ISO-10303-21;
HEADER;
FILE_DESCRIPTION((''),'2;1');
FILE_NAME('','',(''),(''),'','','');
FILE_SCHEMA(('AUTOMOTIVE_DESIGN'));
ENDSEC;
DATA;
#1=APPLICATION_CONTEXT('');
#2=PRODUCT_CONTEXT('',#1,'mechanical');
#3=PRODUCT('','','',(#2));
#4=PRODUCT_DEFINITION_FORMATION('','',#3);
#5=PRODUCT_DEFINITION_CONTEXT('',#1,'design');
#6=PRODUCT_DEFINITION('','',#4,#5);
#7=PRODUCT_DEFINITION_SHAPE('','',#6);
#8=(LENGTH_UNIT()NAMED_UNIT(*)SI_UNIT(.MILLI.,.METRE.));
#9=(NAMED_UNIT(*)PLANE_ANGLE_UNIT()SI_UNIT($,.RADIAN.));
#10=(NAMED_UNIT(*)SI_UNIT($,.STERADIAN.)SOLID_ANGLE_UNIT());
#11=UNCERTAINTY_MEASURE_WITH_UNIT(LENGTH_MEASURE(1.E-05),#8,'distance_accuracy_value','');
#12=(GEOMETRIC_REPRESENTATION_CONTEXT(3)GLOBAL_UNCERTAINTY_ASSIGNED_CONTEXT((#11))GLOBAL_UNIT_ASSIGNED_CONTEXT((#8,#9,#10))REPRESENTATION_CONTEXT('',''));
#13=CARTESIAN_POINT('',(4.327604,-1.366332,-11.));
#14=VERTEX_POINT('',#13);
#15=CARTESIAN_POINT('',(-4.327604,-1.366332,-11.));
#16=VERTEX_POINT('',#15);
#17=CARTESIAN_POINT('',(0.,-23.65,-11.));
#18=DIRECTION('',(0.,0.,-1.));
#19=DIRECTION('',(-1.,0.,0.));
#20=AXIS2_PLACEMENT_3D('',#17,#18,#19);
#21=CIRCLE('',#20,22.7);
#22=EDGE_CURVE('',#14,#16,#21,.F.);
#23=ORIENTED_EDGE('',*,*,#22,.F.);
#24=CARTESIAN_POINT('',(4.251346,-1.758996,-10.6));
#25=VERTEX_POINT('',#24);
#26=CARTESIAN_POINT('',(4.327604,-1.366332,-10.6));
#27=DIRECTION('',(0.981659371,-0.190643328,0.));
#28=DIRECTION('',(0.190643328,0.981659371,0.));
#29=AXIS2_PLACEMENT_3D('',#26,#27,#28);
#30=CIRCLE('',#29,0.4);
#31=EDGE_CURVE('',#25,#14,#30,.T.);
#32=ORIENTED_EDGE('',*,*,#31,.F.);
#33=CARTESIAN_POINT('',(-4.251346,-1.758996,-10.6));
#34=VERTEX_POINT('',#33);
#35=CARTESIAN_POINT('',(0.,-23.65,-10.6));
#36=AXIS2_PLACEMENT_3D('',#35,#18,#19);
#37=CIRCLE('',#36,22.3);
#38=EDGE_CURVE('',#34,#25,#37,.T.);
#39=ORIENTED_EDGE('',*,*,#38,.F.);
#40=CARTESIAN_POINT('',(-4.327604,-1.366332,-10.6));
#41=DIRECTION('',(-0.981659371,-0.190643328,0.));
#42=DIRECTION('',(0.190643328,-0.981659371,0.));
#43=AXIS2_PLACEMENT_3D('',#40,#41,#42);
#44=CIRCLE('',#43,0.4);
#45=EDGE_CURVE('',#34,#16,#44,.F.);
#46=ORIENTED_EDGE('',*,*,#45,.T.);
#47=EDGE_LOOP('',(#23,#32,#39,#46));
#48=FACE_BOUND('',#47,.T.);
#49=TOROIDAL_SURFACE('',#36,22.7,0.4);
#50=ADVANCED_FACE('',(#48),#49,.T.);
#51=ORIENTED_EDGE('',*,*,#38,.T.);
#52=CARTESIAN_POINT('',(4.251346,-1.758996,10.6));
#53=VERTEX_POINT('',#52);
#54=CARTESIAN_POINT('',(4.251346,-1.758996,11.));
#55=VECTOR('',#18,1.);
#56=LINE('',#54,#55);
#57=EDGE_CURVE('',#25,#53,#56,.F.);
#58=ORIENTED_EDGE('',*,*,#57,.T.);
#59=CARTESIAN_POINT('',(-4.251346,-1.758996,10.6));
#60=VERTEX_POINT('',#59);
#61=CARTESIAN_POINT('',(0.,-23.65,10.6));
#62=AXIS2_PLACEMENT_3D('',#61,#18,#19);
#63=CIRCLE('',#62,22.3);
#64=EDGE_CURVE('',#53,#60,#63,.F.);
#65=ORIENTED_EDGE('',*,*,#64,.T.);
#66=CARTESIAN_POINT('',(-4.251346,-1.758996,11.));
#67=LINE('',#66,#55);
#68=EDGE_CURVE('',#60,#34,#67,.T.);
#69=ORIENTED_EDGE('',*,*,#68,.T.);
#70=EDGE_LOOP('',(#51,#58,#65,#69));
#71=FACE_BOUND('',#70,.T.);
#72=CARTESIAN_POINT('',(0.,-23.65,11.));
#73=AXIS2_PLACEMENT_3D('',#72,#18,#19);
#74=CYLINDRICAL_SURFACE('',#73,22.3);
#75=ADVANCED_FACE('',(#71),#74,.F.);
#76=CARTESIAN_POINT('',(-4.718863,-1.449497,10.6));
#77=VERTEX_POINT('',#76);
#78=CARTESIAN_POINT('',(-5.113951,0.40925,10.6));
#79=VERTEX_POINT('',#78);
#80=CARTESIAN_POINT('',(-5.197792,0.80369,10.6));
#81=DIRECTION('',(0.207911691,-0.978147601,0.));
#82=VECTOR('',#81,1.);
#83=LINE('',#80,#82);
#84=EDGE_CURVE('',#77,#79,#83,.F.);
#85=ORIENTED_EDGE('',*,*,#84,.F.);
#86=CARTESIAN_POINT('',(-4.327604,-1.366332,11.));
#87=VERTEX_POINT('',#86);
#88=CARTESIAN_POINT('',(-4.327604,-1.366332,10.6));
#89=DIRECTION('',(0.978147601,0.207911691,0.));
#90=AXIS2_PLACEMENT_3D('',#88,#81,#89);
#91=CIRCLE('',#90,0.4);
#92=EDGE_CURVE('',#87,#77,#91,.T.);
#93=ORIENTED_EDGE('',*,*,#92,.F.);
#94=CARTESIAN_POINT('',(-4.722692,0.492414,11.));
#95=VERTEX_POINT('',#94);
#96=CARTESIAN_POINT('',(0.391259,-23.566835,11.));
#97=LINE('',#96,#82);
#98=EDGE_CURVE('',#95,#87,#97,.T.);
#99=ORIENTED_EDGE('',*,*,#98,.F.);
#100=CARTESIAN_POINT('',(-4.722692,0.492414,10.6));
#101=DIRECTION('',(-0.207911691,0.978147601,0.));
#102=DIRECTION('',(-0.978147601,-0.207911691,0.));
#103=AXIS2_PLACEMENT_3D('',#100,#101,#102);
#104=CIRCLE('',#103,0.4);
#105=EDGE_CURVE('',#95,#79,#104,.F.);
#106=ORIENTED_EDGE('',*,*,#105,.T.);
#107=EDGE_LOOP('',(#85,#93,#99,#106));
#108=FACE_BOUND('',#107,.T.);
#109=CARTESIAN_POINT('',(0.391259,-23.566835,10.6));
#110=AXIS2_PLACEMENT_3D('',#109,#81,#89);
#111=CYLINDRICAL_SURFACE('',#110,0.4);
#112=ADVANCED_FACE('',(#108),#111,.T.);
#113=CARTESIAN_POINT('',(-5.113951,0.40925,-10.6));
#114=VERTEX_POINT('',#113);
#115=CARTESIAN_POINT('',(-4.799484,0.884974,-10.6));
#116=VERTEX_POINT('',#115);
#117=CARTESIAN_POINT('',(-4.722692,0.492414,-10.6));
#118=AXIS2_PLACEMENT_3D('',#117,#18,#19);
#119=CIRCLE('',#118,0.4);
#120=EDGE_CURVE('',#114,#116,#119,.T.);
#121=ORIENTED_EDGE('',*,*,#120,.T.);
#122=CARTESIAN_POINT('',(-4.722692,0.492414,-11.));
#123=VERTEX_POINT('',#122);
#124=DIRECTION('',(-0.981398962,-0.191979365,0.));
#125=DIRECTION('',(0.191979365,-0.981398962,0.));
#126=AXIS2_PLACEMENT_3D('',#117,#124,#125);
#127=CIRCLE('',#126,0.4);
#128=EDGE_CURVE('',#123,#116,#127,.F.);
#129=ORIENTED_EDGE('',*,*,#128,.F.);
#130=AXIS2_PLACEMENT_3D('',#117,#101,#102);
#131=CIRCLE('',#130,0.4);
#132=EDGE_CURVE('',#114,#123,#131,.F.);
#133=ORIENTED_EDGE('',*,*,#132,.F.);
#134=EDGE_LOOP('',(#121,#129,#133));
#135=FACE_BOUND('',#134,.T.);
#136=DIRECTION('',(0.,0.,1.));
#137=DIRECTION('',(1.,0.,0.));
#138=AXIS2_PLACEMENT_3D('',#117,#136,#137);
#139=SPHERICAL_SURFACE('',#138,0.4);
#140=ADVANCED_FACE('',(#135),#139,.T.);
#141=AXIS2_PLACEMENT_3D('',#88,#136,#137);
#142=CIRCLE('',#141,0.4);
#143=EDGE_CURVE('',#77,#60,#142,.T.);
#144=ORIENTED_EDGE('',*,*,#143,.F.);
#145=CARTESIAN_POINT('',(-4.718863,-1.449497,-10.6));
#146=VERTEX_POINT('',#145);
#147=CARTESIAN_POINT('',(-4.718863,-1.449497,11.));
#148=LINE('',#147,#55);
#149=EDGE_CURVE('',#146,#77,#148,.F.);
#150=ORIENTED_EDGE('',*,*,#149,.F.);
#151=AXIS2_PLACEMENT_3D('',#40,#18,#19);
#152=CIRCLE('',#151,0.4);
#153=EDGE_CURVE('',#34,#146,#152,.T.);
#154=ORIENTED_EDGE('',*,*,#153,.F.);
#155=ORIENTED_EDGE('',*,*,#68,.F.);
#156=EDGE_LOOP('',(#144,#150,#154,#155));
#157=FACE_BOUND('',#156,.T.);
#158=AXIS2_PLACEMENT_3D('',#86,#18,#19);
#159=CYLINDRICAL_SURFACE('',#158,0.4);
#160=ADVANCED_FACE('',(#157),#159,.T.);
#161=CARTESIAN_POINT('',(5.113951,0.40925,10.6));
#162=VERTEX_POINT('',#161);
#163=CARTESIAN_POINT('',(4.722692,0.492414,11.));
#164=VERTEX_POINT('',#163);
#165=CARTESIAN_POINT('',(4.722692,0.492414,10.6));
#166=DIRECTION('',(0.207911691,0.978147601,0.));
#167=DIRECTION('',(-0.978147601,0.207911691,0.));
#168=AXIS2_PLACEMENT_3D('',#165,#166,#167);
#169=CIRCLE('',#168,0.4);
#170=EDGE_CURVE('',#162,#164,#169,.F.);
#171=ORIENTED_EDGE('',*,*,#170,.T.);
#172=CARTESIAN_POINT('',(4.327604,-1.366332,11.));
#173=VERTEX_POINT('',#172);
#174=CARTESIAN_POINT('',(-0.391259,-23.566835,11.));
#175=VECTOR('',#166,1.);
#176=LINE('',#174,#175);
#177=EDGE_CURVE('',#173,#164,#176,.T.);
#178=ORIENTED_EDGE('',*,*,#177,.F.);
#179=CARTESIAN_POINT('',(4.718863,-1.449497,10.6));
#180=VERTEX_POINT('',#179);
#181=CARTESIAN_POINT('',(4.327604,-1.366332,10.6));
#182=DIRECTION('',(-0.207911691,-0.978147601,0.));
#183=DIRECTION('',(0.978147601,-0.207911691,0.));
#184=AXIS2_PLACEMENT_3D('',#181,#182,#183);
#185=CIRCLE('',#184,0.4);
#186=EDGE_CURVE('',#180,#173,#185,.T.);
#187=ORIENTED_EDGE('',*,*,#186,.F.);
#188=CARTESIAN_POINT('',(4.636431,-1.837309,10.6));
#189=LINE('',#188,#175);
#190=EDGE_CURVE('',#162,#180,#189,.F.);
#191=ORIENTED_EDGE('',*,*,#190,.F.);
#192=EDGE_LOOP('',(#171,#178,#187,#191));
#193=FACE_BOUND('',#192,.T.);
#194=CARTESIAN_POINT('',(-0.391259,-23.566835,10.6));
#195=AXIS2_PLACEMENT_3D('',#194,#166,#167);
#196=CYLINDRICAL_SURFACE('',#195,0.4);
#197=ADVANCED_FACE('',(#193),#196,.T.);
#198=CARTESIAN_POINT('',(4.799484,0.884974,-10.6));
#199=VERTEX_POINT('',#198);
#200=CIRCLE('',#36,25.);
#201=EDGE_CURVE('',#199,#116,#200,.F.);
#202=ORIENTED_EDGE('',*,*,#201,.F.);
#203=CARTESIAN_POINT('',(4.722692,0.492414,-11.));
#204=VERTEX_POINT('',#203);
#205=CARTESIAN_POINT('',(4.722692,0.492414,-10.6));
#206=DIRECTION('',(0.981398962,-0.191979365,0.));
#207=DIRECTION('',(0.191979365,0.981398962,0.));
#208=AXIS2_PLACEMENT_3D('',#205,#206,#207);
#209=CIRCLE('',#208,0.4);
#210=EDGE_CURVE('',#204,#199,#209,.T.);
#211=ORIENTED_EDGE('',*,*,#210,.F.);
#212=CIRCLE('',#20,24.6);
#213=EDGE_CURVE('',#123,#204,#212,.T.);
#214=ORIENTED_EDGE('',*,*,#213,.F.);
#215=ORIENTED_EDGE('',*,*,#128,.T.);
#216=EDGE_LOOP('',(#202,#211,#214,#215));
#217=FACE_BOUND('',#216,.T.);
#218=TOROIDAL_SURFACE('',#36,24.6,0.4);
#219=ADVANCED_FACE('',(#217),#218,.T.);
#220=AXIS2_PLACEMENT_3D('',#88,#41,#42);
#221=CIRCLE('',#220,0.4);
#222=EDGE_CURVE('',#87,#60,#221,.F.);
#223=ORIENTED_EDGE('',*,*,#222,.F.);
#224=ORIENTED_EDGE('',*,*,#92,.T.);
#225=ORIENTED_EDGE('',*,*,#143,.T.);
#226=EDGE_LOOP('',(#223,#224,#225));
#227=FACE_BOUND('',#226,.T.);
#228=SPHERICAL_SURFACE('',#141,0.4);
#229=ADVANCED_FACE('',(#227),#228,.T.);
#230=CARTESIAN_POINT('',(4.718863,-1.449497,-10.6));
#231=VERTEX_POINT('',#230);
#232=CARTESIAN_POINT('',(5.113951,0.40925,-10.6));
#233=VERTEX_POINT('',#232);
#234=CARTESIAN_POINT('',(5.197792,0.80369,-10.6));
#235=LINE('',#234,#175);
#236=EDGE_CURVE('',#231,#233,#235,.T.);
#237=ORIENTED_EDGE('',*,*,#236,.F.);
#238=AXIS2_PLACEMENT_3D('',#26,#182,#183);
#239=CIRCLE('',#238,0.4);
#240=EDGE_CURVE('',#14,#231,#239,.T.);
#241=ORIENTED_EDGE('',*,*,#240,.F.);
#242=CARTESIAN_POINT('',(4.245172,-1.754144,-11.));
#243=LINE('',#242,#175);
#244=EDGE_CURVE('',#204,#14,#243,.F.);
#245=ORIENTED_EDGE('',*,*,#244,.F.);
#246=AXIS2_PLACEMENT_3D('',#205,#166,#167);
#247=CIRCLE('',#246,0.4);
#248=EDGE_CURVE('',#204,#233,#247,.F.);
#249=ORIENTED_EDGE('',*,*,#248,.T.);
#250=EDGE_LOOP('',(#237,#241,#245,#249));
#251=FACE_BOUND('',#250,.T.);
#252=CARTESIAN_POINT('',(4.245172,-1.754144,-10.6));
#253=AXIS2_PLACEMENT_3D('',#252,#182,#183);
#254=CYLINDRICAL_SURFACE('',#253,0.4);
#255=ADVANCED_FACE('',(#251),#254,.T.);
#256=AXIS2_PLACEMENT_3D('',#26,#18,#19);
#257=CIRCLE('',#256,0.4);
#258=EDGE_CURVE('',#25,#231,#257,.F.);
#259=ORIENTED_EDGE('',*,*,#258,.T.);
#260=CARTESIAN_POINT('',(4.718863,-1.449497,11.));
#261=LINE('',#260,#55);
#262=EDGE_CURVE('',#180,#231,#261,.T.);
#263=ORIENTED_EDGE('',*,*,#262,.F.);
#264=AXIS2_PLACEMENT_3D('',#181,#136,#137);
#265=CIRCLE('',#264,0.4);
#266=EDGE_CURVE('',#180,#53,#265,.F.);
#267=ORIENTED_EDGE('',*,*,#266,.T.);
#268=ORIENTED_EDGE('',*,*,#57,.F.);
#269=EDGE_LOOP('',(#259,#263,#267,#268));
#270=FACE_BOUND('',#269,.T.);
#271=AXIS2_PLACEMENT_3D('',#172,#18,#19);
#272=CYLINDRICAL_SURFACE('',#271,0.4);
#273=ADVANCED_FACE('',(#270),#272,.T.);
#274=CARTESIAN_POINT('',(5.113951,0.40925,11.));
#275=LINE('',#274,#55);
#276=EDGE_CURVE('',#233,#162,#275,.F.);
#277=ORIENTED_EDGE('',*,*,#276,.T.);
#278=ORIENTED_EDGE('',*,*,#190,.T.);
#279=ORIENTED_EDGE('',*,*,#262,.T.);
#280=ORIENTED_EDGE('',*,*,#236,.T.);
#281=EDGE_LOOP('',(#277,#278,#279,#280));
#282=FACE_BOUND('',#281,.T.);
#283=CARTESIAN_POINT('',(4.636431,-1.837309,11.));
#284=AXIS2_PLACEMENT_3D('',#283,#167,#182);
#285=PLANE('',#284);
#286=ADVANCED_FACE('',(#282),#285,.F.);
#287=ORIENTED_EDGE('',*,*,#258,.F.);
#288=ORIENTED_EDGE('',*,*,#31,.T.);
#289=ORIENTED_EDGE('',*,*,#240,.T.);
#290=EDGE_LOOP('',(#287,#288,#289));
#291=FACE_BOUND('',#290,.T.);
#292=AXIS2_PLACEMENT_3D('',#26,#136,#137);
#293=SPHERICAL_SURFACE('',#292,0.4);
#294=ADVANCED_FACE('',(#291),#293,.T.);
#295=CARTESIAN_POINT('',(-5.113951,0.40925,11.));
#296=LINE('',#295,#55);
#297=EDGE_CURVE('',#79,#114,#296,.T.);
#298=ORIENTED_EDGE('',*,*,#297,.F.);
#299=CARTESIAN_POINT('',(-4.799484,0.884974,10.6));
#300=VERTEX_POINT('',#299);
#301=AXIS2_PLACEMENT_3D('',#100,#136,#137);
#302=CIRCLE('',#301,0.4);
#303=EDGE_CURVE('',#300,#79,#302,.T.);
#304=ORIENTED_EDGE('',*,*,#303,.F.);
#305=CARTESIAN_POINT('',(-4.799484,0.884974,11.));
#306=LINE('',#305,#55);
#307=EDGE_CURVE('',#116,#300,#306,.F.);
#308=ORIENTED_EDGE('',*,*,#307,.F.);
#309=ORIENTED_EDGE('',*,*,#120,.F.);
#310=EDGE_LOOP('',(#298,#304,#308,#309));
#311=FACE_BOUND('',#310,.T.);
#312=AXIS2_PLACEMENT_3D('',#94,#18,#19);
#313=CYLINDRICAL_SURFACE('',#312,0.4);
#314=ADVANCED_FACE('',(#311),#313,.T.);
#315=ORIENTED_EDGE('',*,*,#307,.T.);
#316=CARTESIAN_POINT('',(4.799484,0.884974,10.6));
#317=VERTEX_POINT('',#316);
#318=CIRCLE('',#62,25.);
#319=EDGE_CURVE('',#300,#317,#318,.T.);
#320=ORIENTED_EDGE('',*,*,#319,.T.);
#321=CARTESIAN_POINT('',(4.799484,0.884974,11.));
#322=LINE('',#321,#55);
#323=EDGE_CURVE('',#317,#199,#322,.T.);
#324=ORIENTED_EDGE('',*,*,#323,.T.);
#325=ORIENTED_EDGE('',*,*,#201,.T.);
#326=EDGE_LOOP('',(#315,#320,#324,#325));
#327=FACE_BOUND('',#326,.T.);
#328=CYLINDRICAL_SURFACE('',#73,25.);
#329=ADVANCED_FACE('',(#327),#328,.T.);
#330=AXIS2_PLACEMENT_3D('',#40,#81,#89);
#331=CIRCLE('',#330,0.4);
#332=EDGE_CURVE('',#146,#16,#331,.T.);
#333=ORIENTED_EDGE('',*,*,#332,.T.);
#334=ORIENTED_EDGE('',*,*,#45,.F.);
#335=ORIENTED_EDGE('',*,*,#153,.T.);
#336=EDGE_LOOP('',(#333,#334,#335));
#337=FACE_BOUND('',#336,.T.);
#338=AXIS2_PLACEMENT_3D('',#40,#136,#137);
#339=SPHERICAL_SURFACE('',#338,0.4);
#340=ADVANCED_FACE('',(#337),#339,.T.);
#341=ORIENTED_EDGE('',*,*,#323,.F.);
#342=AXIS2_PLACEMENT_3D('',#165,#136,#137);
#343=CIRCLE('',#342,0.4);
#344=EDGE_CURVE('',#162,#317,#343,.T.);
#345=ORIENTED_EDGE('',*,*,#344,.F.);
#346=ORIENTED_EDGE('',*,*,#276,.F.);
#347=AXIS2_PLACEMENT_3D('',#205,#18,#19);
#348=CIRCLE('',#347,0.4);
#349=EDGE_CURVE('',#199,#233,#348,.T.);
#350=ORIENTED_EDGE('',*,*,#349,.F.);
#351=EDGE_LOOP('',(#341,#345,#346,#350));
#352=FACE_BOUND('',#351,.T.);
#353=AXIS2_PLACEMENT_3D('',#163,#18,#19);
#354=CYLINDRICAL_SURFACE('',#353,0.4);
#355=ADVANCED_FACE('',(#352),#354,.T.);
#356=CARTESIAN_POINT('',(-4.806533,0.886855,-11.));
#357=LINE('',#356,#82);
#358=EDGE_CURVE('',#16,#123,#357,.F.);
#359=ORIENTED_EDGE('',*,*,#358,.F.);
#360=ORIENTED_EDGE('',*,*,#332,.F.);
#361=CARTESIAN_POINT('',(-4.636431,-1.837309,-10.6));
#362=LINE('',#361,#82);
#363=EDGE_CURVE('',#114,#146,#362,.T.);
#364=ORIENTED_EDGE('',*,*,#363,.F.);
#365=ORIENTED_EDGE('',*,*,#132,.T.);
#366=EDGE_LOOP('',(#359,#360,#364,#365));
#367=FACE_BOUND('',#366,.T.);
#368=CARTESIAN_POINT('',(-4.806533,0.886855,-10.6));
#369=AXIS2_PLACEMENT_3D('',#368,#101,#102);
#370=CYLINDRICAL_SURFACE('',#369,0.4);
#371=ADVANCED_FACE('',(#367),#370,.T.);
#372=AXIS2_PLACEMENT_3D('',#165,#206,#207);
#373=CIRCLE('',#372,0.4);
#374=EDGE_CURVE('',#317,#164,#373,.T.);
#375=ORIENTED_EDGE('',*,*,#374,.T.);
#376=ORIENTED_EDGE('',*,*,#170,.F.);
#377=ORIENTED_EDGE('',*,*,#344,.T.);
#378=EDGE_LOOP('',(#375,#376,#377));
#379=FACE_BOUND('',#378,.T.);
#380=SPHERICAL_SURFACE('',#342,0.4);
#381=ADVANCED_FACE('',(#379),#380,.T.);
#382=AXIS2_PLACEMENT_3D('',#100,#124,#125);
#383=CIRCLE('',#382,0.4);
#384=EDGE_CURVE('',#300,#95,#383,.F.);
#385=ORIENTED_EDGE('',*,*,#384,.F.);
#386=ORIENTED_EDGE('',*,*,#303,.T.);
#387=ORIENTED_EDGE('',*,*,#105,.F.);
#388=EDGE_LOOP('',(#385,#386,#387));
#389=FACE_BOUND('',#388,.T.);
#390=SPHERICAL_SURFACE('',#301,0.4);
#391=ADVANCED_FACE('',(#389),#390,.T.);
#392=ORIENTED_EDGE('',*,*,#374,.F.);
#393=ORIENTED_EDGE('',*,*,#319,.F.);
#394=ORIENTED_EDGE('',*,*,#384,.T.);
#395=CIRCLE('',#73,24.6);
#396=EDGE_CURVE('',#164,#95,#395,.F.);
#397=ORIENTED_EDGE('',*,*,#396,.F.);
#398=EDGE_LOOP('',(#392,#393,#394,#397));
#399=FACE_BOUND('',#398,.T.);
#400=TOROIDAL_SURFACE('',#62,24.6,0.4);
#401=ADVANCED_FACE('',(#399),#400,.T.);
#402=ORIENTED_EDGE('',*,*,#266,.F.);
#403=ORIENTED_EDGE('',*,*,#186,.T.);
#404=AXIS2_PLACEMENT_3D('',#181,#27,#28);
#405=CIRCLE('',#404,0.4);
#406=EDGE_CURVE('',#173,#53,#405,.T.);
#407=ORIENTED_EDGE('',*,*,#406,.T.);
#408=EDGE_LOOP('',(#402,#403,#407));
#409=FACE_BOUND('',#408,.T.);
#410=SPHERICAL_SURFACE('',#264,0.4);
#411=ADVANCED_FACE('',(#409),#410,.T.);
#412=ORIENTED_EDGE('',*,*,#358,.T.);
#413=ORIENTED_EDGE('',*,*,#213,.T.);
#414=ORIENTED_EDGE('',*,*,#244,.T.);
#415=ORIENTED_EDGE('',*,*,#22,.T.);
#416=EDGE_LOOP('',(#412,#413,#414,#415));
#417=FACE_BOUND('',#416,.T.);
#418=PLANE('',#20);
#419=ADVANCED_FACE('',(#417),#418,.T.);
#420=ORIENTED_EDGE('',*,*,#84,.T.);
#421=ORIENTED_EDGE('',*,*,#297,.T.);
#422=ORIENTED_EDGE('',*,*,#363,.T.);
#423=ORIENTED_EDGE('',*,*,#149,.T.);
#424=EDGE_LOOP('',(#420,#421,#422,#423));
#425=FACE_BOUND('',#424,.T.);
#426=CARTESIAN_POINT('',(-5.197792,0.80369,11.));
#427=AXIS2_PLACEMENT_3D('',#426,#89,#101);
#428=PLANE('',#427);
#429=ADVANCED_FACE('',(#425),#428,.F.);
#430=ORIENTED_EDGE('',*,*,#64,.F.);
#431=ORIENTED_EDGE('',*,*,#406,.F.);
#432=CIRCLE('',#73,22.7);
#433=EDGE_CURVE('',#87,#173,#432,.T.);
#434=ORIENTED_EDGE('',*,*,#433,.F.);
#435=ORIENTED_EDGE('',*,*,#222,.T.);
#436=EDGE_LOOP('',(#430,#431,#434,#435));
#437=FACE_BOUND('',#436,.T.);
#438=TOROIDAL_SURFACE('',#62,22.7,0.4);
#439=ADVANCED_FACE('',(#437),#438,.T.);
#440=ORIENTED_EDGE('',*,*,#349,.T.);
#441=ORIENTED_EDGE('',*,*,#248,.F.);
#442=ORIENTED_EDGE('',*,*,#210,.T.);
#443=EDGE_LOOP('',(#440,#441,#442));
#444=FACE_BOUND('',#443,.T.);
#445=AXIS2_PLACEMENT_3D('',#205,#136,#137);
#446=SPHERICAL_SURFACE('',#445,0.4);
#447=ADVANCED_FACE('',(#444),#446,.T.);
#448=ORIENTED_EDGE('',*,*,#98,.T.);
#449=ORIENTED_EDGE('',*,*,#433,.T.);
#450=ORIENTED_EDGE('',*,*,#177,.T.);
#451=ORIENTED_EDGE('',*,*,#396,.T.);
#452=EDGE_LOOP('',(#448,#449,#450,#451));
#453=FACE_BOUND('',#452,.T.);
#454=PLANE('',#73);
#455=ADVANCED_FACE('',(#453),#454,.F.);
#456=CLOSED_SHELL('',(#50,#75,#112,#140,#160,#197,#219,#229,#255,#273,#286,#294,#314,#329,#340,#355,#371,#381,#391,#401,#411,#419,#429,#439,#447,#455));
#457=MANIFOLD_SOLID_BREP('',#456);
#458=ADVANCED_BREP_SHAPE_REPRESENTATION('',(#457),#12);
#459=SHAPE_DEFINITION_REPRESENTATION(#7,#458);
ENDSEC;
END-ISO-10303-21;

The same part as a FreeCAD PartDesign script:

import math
import FreeCAD as App
import Part
import Sketcher
Q = App.Units.Quantity

doc = App.newDocument("Part")
body = doc.addObject("PartDesign::Body", "Body")

sketch1 = doc.addObject("Sketcher::SketchObject", "Sketch")
body.addObject(sketch1)
sketch1.AttachmentSupport = (doc.XY_Plane, [""])
sketch1.MapMode = "FlatFace"
sketch1.addGeometry([
    Part.LineSegment(App.Vector(-5.197792, 0.80369, 0), App.Vector(-4.636431, -1.837309, 0)),
    Part.ArcOfCircle(Part.Circle(App.Vector(0, -23.65, 0), App.Vector(0, 0, 1), 22.3), math.radians(78), math.radians(102)),
    Part.LineSegment(App.Vector(4.636431, -1.837309, 0), App.Vector(5.197792, 0.80369, 0)),
    Part.ArcOfCircle(Part.Circle(App.Vector(0, -23.65, 0), App.Vector(0, 0, 1), 25), math.radians(78), math.radians(102)),
], False)
sketch1.addConstraint([
    Sketcher.Constraint("Coincident", 0, 2, 1, 2),
    Sketcher.Constraint("Coincident", 1, 1, 2, 1),
    Sketcher.Constraint("Coincident", 2, 2, 3, 1),
    Sketcher.Constraint("Coincident", 3, 2, 0, 1),
    Sketcher.Constraint("Coincident", 3, 3, 1, 3),
    Sketcher.Constraint("Symmetric", 0, 2, 1, 1, -2),
    Sketcher.Constraint("Horizontal", 2, 2, 3, 2),
    Sketcher.Constraint("Radius", 3, 25.0),
    Sketcher.Constraint("Radius", 1, 22.3),
    Sketcher.Constraint("Angle", 0, Q("-78 deg")),
    Sketcher.Constraint("DistanceY", 1, 3, -1, 1, 23.65),
    Sketcher.Constraint("DistanceX", 0, 2, -1, 1, 4.636431),
])
pad1 = doc.addObject("PartDesign::Pad", "Pad")
body.addObject(pad1)
pad1.Profile = sketch1
pad1.Length = 22
pad1.Midplane = True
doc.recompute()

fillet = doc.addObject("PartDesign::Fillet", "Fillet")
body.addObject(fillet)
fillet.Base = (pad1, ["Edge1"])
fillet.UseAllEdges = True
fillet.Radius = 0.4

doc.recompute()
